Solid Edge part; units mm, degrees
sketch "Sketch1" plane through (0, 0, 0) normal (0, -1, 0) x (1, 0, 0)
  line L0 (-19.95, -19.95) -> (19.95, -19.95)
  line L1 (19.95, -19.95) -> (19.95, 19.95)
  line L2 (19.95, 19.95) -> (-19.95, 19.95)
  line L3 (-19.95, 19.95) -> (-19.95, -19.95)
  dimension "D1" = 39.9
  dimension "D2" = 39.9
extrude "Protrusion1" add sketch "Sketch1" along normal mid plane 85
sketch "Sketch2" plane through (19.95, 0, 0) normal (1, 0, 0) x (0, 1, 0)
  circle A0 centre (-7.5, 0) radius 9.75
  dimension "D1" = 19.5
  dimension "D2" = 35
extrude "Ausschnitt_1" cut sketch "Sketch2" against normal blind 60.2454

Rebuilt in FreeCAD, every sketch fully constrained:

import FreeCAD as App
import Part
import Sketcher
Q = App.Units.Quantity

doc = App.newDocument("Part")
params = doc.addObject("Spreadsheet::Sheet", "Params")
for row, (alias, value) in enumerate([
    ("pad1_length", "85 mm"),
    ("sketch2_diameter", "19.5 mm"),
    ("pocket1_length", "60.2454 mm"),
], start=1):
    params.set(f"A{row}", alias)
    params.set(f"B{row}", "=" + value)
    params.setAlias(f"B{row}", alias)

body = doc.addObject("PartDesign::Body", "Body")

# Sketch on XZ plane
sketch1 = doc.addObject("Sketcher::SketchObject", "Sketch")
body.addObject(sketch1)
sketch1.AttachmentSupport = (doc.XZ_Plane, [""])
sketch1.MapMode = "FlatFace"
sketch1.addGeometry([
    Part.LineSegment(App.Vector(-19.95, 19.95, 0), App.Vector(-19.95, -19.95, 0)),
    Part.LineSegment(App.Vector(-19.95, -19.95, 0), App.Vector(19.95, -19.95, 0)),
    Part.LineSegment(App.Vector(19.95, -19.95, 0), App.Vector(19.95, 19.95, 0)),
    Part.LineSegment(App.Vector(19.95, 19.95, 0), App.Vector(-19.95, 19.95, 0)),
], False)
sketch1.addConstraint([
    Sketcher.Constraint("Coincident", 0, 2, 1, 1),
    Sketcher.Constraint("Coincident", 1, 2, 2, 1),
    Sketcher.Constraint("Coincident", 2, 2, 3, 1),
    Sketcher.Constraint("Coincident", 3, 2, 0, 1),
    Sketcher.Constraint("Vertical", 0),
    Sketcher.Constraint("Horizontal", 1),
    Sketcher.Constraint("Vertical", 2),
    Sketcher.Constraint("Horizontal", 3),
    Sketcher.Constraint("Symmetric", 0, 2, 2, 2, -1, 1),
    Sketcher.Constraint("Equal", 3, 0),
    Sketcher.Constraint("DistanceX", 0, 2, -1, 1, Q("19.95 mm")),
])
pad1 = doc.addObject("PartDesign::Pad", "Pad")
body.addObject(pad1)
pad1.Profile = sketch1
pad1.setExpression("Length", "Params.pad1_length")
pad1.Midplane = True

# Sketch on YZ plane
sketch2 = doc.addObject("Sketcher::SketchObject", "Sketch001")
body.addObject(sketch2)
sketch2.AttachmentSupport = (doc.YZ_Plane, [""])
sketch2.MapMode = "FlatFace"
sketch2.AttachmentOffset = App.Placement(App.Vector(0, 0, 19.95), App.Rotation())
sketch2.addGeometry(Part.Circle(App.Vector(-7.5, 0, 0), App.Vector(0, 0, 1), 9.75), False)
sketch2.addConstraint([
    Sketcher.Constraint("PointOnObject", 0, 3, -1),
    Sketcher.Constraint("Diameter", 0, Q("19.5 mm")),
    Sketcher.Constraint("DistanceX", 0, 3, -1, 1, Q("7.5 mm")),
])
sketch2.setExpression("Constraints[1]", "Params.sketch2_diameter")
pocket1 = doc.addObject("PartDesign::Pocket", "Pocket")
body.addObject(pocket1)
pocket1.Profile = sketch2
pocket1.setExpression("Length", "Params.pocket1_length")

doc.recompute()
